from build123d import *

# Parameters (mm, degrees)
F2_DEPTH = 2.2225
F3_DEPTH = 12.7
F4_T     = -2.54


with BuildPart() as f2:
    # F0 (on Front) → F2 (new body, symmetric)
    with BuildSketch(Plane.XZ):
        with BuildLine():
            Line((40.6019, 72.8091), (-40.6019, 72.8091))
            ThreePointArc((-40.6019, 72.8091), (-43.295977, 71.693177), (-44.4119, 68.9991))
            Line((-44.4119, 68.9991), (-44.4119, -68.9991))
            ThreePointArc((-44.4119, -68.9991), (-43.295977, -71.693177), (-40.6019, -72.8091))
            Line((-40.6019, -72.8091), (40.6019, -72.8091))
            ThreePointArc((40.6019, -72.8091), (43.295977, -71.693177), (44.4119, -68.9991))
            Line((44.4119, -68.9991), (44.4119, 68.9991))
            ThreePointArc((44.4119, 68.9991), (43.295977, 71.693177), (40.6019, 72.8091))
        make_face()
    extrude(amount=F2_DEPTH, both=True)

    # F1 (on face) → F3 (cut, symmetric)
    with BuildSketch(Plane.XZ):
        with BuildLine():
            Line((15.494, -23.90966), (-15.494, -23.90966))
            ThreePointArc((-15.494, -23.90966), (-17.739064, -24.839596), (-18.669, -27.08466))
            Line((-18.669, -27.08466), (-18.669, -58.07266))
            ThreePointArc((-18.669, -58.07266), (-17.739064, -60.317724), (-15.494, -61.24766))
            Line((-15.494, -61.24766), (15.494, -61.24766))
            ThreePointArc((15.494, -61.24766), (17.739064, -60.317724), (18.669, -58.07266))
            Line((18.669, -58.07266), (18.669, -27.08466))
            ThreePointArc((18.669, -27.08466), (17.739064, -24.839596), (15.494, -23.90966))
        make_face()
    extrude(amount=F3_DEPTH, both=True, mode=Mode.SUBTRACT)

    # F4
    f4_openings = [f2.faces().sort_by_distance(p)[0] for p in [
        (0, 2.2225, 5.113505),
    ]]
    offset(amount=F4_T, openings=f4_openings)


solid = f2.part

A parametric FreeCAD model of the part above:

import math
import FreeCAD as App
import Part
import Sketcher
from FreeCAD import Vector
Q = App.Units.Quantity


def faces_at(feature, points):
    """Names of the faces that lie closest to the given points."""
    faces = feature.Shape.Faces
    near = lambda p: min(range(len(faces)), key=lambda i: faces[i].distToShape(Part.Vertex(*p))[0])
    return sorted({f"Face{near(p) + 1}" for p in points})

doc = App.newDocument("Part")
body = doc.addObject("PartDesign::Body", "Body")

sketch1 = doc.addObject("Sketcher::SketchObject", "Sketch")
body.addObject(sketch1)
sketch1.AttachmentSupport = (doc.XZ_Plane, [""])
sketch1.MapMode = "FlatFace"
sketch1.addGeometry(Part.LineSegment(Vector(40.6019, 72.8091, 0), Vector(-40.6019, 72.8091, 0)), False)
sketch1.addGeometry(Part.ArcOfCircle(Part.Circle(Vector(-40.601901, 68.999101, 0), Vector(0, 0, 1), 3.809999), math.radians(89.999992), math.radians(180.000008)), False)
sketch1.addGeometry(Part.LineSegment(Vector(-44.4119, 68.9991, 0), Vector(-44.4119, -68.9991, 0)), False)
sketch1.addGeometry(Part.ArcOfCircle(Part.Circle(Vector(-40.601901, -68.999101, 0), Vector(0, 0, 1), 3.809999), math.radians(179.999992), math.radians(270.000008)), False)
sketch1.addGeometry(Part.LineSegment(Vector(-40.6019, -72.8091, 0), Vector(40.6019, -72.8091, 0)), False)
sketch1.addGeometry(Part.ArcOfCircle(Part.Circle(Vector(40.601901, -68.999101, 0), Vector(0, 0, 1), 3.809999), math.radians(-90.000008), math.radians(0.000008)), False)
sketch1.addGeometry(Part.LineSegment(Vector(44.4119, -68.9991, 0), Vector(44.4119, 68.9991, 0)), False)
sketch1.addGeometry(Part.ArcOfCircle(Part.Circle(Vector(40.601901, 68.999101, 0), Vector(0, 0, 1), 3.809999), math.radians(-0.000008), math.radians(90.000008)), False)
sketch1.addConstraint(Sketcher.Constraint("Tangent", 0, 2, 1, 1))
sketch1.addConstraint(Sketcher.Constraint("Tangent", 1, 2, 2, 1))
sketch1.addConstraint(Sketcher.Constraint("Tangent", 2, 2, 3, 1))
sketch1.addConstraint(Sketcher.Constraint("Tangent", 3, 2, 4, 1))
sketch1.addConstraint(Sketcher.Constraint("Tangent", 4, 2, 5, 1))
sketch1.addConstraint(Sketcher.Constraint("Tangent", 5, 2, 6, 1))
sketch1.addConstraint(Sketcher.Constraint("Tangent", 6, 2, 7, 1))
sketch1.addConstraint(Sketcher.Constraint("Tangent", 7, 2, 0, 1))
sketch1.addConstraint(Sketcher.Constraint("Horizontal", 0))
sketch1.addConstraint(Sketcher.Constraint("Vertical", 2))
sketch1.addConstraint(Sketcher.Constraint("Horizontal", 4))
sketch1.addConstraint(Sketcher.Constraint("Vertical", 6))
sketch1.addConstraint(Sketcher.Constraint("Equal", 1, 3))
sketch1.addConstraint(Sketcher.Constraint("Equal", 3, 5))
sketch1.addConstraint(Sketcher.Constraint("Equal", 5, 7))
sketch1.addConstraint(Sketcher.Constraint("Symmetric", 1, 3, 5, 3, -1, 1))
sketch1.addConstraint(Sketcher.Constraint("Radius", 1, Q("0.15 in")))
sketch1.addConstraint(Sketcher.Constraint("DistanceX", 0, 2, 0, 1, Q("3.197 in")))
sketch1.addConstraint(Sketcher.Constraint("DistanceY", 2, 2, 2, 1, Q("5.433 in")))
pad1 = doc.addObject("PartDesign::Pad", "Pad")
body.addObject(pad1)
pad1.Profile = sketch1
pad1.Length = Q("0.175 in")
pad1.Midplane = True

sketch2 = doc.addObject("Sketcher::SketchObject", "Sketch001")
body.addObject(sketch2)
sketch2.AttachmentSupport = (doc.XZ_Plane, [""])
sketch2.MapMode = "FlatFace"
sketch2.addGeometry(Part.LineSegment(Vector(15.494, -23.90966, 0), Vector(-15.494, -23.90966, 0)), False)
sketch2.addGeometry(Part.ArcOfCircle(Part.Circle(Vector(-15.494, -27.08466, 0), Vector(0, 0, 1), 3.175), math.radians(90.000002), math.radians(179.999998)), False)
sketch2.addGeometry(Part.LineSegment(Vector(-18.669, -27.08466, 0), Vector(-18.669, -58.07266, 0)), False)
sketch2.addGeometry(Part.ArcOfCircle(Part.Circle(Vector(-15.494, -58.07266, 0), Vector(0, 0, 1), 3.175), math.radians(-179.999998), math.radians(-90.000002)), False)
sketch2.addGeometry(Part.LineSegment(Vector(-15.494, -61.24766, 0), Vector(15.494, -61.24766, 0)), False)
sketch2.addGeometry(Part.ArcOfCircle(Part.Circle(Vector(15.494, -58.07266, 0), Vector(0, 0, 1), 3.175), math.radians(-89.999998), math.radians(-0.000002)), False)
sketch2.addGeometry(Part.LineSegment(Vector(18.669, -58.07266, 0), Vector(18.669, -27.08466, 0)), False)
sketch2.addGeometry(Part.ArcOfCircle(Part.Circle(Vector(15.494, -27.08466, 0), Vector(0, 0, 1), 3.175), math.radians(0.000002), math.radians(89.999998)), False)
sketch2.addConstraint(Sketcher.Constraint("Tangent", 0, 2, 1, 1))
sketch2.addConstraint(Sketcher.Constraint("Tangent", 1, 2, 2, 1))
sketch2.addConstraint(Sketcher.Constraint("Tangent", 2, 2, 3, 1))
sketch2.addConstraint(Sketcher.Constraint("Tangent", 3, 2, 4, 1))
sketch2.addConstraint(Sketcher.Constraint("Tangent", 4, 2, 5, 1))
sketch2.addConstraint(Sketcher.Constraint("Tangent", 5, 2, 6, 1))
sketch2.addConstraint(Sketcher.Constraint("Tangent", 6, 2, 7, 1))
sketch2.addConstraint(Sketcher.Constraint("Tangent", 7, 2, 0, 1))
sketch2.addConstraint(Sketcher.Constraint("Horizontal", 0))
sketch2.addConstraint(Sketcher.Constraint("Vertical", 2))
sketch2.addConstraint(Sketcher.Constraint("Horizontal", 4))
sketch2.addConstraint(Sketcher.Constraint("Vertical", 6))
sketch2.addConstraint(Sketcher.Constraint("Equal", 1, 3))
sketch2.addConstraint(Sketcher.Constraint("Equal", 3, 5))
sketch2.addConstraint(Sketcher.Constraint("Equal", 5, 7))
sketch2.addConstraint(Sketcher.Constraint("Equal", 4, 2))
sketch2.addConstraint(Sketcher.Constraint("Radius", 1, Q("0.125 in")))
sketch2.addConstraint(Sketcher.Constraint("DistanceX", 0, 2, 0, 1, Q("1.22 in")))
sketch2.addConstraint(Sketcher.Constraint("DistanceX", 1, 3, -1, 1, Q("0.61 in")))
sketch2.addConstraint(Sketcher.Constraint("DistanceY", 1, 3, -1, 1, Q("27.08466 mm")))
pocket1 = doc.addObject("PartDesign::Pocket", "Pocket")
body.addObject(pocket1)
pocket1.Profile = sketch2
pocket1.Length = Q("1 in")
pocket1.Midplane = True
doc.recompute()

thickness = doc.addObject("PartDesign::Thickness", "Thickness")
body.addObject(thickness)
thickness.Base = (pocket1, faces_at(pocket1, [(0, 2.223, 0)]))
thickness.Value = Q("0.1 in")
thickness.Reversed = True
thickness.Join = "Arc"

doc.recompute()
